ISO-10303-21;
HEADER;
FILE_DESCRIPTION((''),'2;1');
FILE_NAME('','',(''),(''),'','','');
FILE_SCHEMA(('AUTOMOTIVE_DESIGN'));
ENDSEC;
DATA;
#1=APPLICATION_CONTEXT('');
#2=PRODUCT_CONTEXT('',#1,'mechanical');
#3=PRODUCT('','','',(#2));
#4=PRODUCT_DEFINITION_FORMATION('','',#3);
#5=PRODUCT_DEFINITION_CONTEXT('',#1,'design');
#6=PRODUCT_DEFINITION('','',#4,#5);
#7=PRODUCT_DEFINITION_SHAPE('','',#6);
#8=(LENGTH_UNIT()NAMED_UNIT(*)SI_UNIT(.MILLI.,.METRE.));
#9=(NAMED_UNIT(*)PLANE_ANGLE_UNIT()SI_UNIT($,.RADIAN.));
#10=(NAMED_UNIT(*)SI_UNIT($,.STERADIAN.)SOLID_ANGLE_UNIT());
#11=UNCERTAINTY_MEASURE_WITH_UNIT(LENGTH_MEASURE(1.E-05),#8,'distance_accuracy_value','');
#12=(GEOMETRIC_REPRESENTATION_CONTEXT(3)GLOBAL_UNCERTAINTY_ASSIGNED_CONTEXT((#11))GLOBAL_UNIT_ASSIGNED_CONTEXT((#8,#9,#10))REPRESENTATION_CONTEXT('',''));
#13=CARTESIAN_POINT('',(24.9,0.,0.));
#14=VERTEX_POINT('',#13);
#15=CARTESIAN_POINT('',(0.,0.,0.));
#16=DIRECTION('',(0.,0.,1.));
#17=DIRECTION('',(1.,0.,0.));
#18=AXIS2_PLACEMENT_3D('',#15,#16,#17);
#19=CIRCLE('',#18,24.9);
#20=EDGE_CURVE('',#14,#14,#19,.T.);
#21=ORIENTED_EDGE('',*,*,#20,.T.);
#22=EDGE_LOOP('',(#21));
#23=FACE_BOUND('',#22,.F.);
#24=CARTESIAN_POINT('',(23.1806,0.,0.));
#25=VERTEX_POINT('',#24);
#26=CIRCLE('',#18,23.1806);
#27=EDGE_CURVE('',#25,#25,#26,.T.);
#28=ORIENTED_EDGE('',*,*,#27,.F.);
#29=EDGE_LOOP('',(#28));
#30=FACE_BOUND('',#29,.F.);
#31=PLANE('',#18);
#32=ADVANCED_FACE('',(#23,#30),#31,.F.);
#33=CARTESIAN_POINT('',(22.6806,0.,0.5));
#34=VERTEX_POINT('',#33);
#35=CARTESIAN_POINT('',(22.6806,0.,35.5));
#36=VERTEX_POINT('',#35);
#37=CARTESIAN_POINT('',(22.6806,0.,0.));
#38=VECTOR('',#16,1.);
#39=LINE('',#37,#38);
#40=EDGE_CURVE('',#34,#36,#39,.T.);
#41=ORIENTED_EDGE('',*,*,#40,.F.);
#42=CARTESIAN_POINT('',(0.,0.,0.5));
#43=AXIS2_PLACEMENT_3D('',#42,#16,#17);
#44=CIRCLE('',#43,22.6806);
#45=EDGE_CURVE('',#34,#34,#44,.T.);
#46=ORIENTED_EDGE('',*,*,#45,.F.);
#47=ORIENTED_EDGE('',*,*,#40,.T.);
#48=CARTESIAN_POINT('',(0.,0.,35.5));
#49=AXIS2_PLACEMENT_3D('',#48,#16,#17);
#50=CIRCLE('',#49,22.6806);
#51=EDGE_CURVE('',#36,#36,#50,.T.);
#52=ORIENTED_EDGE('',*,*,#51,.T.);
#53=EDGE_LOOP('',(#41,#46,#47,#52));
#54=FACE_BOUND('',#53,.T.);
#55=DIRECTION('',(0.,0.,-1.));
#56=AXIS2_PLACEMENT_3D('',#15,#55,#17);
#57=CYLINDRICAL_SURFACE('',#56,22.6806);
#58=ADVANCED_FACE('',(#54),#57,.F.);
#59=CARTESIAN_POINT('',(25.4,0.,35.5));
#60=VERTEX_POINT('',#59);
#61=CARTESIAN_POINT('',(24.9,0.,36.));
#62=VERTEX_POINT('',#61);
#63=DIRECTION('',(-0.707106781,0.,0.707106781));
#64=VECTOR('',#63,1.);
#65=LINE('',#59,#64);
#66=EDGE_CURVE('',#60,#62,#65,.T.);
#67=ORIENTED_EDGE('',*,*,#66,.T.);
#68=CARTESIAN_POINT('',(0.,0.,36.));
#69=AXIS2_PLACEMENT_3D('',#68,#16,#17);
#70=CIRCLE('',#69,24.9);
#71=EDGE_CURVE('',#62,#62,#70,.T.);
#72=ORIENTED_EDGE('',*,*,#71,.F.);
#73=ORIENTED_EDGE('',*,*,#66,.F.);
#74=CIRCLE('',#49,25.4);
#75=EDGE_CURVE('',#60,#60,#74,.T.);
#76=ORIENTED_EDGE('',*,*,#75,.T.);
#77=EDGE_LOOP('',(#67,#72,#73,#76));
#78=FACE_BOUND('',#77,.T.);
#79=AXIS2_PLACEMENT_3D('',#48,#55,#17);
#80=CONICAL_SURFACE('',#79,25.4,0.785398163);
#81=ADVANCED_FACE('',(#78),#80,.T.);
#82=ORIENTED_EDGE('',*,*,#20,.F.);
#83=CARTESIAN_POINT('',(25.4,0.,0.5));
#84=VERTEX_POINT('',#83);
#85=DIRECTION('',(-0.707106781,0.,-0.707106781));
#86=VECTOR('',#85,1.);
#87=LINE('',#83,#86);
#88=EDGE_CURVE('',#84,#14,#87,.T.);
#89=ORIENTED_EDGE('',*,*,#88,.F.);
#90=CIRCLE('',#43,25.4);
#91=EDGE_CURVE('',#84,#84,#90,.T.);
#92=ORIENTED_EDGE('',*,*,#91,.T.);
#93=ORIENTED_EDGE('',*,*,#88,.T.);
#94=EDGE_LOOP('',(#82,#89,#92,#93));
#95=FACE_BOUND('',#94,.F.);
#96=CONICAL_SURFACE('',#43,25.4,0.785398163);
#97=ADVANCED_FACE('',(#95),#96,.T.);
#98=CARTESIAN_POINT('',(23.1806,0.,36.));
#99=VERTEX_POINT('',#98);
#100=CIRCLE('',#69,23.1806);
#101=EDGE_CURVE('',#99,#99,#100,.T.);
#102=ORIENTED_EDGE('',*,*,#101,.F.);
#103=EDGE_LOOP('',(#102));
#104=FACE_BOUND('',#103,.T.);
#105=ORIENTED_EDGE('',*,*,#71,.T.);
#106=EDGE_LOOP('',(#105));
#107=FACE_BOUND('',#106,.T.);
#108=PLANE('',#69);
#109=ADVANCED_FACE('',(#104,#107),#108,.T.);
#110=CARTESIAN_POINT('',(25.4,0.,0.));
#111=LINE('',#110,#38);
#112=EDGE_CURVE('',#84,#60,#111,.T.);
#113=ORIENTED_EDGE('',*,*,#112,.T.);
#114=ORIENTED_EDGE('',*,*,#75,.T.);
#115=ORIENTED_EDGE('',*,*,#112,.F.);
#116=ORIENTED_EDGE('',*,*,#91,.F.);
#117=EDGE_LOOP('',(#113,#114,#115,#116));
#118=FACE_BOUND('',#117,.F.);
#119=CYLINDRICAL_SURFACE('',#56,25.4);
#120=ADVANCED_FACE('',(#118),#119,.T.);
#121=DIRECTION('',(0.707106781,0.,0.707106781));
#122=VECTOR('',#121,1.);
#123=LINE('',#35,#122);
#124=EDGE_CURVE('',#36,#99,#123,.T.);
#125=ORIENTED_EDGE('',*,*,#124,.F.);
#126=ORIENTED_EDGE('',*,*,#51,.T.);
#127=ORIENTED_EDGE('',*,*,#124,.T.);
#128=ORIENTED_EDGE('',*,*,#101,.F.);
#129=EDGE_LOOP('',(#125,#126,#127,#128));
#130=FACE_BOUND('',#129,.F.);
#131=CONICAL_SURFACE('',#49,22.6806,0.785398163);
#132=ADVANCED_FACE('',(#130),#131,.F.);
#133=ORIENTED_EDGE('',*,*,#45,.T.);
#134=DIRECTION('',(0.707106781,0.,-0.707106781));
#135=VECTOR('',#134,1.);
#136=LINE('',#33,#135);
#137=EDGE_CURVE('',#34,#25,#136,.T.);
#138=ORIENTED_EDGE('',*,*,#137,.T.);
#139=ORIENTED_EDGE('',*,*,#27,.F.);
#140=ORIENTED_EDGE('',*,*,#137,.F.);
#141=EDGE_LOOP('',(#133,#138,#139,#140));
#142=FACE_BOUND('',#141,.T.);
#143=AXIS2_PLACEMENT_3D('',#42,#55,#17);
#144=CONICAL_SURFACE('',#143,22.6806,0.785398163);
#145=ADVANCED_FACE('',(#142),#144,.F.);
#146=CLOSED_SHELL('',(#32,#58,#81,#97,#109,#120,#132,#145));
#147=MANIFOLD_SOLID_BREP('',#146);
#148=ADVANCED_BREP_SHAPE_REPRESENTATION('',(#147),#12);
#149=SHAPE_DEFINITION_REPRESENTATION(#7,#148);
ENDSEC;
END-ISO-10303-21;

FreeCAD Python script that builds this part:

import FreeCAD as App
import Part
import Sketcher
from FreeCAD import Vector


def edges_at(feature, points):
    """Names of the edges that pass closest to the given points."""
    edges = feature.Shape.Edges
    near = lambda p: min(range(len(edges)), key=lambda i: edges[i].distToShape(Part.Vertex(*p))[0])
    return sorted({f"Edge{near(p) + 1}" for p in points})

doc = App.newDocument("Part")
params = doc.addObject("Spreadsheet::Sheet", "Params")
for row, (alias, value) in enumerate([
    ("sketch1_diameter", "50.8 mm"),
    ("pad1_length", "36 mm"),
    ("chamfer_size", "0.5 mm"),
], start=1):
    params.set(f"A{row}", alias)
    params.set(f"B{row}", "=" + value)
    params.setAlias(f"B{row}", alias)

body = doc.addObject("PartDesign::Body", "Body")

sketch1 = doc.addObject("Sketcher::SketchObject", "Sketch")
body.addObject(sketch1)
sketch1.AttachmentSupport = (doc.XY_Plane, [""])
sketch1.MapMode = "FlatFace"
sketch1.addGeometry(Part.Circle(Vector(0, 0, 0), Vector(0, 0, 1), 25), False)
sketch1.addGeometry(Part.Circle(Vector(0, 0, 0), Vector(0, 0, 1), 23), False)
sketch1.addConstraint(Sketcher.Constraint("Coincident", 0, 3, -1, 1))
sketch1.addConstraint(Sketcher.Constraint("Coincident", 1, 3, -1, 1))
sketch1.addConstraint(Sketcher.Constraint("Diameter", 0, 50.8))
sketch1.addConstraint(Sketcher.Constraint("Diameter", 1, 45.3612))
sketch1.setExpression("Constraints[2]", "Params.sketch1_diameter")
pad1 = doc.addObject("PartDesign::Pad", "Pad")
body.addObject(pad1)
pad1.Profile = sketch1
pad1.setExpression("Length", "Params.pad1_length")
doc.recompute()

chamfer = doc.addObject("PartDesign::Chamfer", "Chamfer")
body.addObject(chamfer)
chamfer.Base = (pad1, edges_at(pad1, [
    (-22.681, 0, 36),
    (-22.681, 0, 0),
    (-25.4, 0, 36),
    (-25.4, 0, 0),
]))
chamfer.setExpression("Size", "Params.chamfer_size")

doc.recompute()
